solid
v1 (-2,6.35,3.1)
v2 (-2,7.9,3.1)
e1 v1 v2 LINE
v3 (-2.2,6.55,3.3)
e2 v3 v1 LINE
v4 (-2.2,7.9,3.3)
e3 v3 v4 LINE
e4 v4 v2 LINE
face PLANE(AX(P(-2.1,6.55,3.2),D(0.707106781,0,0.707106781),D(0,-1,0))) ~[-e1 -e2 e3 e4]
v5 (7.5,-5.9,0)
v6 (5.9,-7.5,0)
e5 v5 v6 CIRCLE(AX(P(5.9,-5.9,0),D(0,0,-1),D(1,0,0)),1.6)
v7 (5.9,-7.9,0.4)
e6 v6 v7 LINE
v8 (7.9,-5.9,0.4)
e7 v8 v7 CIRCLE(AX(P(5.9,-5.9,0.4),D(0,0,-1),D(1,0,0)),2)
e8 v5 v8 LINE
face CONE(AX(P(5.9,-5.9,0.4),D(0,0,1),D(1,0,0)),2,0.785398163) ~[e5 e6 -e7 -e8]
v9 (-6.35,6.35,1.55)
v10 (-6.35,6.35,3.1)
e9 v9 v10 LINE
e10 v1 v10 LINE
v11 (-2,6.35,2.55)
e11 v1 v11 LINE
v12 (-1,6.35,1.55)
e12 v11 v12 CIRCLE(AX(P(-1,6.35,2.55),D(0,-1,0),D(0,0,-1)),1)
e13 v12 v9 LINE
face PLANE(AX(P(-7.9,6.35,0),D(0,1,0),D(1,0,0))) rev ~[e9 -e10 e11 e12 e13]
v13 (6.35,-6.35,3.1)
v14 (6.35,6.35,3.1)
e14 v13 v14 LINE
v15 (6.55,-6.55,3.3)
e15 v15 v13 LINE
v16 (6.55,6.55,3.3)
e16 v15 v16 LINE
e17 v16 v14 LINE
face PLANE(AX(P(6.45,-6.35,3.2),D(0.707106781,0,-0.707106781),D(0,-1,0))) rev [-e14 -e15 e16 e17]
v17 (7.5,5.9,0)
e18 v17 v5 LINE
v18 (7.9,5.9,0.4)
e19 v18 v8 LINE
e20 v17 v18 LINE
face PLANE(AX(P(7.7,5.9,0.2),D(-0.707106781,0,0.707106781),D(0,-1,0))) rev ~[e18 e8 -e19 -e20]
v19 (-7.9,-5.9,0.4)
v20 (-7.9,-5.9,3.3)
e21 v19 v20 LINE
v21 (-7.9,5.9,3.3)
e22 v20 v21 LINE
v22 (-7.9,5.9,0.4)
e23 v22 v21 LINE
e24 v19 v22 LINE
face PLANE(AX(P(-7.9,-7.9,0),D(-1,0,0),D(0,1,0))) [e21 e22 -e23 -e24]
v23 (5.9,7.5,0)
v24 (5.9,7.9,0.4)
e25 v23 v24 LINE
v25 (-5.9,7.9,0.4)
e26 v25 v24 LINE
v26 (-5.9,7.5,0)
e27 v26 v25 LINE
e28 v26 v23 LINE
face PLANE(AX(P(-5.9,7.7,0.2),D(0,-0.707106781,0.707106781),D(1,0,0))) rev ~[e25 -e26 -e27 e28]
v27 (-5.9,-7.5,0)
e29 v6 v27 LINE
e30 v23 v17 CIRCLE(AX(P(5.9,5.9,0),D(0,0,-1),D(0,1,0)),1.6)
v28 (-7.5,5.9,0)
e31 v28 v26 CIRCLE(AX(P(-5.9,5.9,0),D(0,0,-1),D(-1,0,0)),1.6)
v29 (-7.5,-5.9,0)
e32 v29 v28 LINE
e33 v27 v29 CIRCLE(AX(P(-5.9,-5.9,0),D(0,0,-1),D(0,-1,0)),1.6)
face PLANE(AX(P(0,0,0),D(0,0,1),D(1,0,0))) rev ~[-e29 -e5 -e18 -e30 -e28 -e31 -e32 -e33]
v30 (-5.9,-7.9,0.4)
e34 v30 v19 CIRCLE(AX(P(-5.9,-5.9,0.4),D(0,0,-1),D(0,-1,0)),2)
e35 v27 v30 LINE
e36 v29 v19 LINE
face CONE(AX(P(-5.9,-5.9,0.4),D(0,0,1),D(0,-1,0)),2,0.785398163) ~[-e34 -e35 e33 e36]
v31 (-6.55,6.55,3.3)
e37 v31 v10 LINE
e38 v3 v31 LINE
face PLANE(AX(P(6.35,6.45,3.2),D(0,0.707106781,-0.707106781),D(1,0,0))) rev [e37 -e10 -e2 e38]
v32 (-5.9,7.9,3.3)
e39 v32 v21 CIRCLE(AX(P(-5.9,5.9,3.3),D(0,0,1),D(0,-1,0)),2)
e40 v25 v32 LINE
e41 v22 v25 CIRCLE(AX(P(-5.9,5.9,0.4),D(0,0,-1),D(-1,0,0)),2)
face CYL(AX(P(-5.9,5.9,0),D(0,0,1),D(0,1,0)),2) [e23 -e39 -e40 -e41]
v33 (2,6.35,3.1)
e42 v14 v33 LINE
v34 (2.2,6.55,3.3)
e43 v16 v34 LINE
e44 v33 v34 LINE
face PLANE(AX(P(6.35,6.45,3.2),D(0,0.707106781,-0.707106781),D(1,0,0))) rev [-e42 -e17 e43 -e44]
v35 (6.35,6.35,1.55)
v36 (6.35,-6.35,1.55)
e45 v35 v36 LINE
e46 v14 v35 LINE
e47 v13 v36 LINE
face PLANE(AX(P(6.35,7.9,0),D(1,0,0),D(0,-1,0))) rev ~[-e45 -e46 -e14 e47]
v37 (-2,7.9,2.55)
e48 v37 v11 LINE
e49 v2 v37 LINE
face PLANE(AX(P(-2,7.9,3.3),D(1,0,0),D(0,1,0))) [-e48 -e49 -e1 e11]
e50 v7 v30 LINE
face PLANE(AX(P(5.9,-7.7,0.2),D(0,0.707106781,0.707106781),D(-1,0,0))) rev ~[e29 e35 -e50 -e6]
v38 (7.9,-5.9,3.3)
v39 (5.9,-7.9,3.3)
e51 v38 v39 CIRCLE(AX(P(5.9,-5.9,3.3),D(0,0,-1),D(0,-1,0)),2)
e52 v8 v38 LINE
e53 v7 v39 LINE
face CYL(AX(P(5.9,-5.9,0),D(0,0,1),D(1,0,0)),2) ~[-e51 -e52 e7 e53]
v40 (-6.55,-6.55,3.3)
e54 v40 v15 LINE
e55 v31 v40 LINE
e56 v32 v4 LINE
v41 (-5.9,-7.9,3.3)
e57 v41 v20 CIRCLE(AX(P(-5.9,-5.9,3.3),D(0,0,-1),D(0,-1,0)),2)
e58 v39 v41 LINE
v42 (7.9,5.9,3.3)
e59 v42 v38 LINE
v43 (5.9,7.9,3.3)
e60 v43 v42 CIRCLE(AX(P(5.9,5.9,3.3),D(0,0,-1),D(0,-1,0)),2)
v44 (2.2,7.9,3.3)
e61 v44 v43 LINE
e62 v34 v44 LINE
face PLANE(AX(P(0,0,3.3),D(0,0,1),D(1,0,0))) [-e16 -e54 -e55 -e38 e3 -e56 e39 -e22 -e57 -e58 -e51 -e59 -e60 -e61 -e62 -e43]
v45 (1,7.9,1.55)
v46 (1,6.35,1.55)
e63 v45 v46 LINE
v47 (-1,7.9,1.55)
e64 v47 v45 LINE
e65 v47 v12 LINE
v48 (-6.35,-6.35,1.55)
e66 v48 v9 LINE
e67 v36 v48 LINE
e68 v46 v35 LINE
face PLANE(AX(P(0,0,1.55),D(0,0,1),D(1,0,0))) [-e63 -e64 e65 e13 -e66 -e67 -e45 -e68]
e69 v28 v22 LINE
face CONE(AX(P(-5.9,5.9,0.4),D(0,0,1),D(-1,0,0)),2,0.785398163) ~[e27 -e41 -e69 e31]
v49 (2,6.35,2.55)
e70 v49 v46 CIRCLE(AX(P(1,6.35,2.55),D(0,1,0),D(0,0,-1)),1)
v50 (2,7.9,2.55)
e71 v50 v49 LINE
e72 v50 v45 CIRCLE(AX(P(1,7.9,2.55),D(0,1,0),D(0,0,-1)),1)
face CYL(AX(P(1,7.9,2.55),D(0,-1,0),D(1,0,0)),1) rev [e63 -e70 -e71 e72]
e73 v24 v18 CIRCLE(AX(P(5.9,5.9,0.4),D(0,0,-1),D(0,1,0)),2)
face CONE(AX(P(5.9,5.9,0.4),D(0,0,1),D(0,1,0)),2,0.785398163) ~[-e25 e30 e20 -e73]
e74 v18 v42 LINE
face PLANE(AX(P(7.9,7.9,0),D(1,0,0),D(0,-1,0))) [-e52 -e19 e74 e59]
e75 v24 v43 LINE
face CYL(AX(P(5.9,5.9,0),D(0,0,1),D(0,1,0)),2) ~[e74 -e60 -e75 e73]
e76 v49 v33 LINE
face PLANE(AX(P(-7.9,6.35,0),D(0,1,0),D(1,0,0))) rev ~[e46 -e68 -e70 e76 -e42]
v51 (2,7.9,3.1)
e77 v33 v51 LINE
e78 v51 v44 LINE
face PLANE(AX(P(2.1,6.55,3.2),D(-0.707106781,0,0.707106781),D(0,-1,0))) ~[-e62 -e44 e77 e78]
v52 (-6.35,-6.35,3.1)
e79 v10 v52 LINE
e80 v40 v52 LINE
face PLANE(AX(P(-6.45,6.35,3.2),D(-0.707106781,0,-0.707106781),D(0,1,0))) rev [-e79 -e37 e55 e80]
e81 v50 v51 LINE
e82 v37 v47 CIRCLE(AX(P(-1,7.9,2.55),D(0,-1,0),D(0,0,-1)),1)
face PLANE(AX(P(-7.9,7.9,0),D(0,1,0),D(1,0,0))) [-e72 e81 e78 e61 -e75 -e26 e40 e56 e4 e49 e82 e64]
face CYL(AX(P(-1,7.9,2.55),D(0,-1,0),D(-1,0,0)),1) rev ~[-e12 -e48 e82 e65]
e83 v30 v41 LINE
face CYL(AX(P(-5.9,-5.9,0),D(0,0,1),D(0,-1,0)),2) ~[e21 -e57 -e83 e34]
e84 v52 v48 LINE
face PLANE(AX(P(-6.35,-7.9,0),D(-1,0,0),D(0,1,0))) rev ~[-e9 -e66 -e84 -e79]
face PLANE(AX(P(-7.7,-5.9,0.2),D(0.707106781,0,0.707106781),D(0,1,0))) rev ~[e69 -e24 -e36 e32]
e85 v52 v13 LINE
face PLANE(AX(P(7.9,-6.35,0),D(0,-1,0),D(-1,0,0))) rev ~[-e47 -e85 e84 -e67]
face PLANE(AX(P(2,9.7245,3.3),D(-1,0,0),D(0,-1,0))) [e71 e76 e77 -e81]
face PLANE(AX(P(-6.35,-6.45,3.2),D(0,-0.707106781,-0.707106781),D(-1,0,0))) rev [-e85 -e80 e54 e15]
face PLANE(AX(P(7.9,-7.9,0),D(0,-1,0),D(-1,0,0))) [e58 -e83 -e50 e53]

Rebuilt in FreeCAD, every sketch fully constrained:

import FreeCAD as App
import Part
import Sketcher

V = App.Vector
Q = App.Units.Quantity


def edges_at(feature, points):
    """Names of the edges that pass closest to the given points."""
    edges = feature.Shape.Edges
    near = lambda p: min(range(len(edges)), key=lambda i: edges[i].distToShape(Part.Vertex(*p))[0])
    return sorted({f"Edge{near(p) + 1}" for p in points})


def faces_at(feature, points):
    """Names of the faces that lie closest to the given points."""
    faces = feature.Shape.Faces
    near = lambda p: min(range(len(faces)), key=lambda i: faces[i].distToShape(Part.Vertex(*p))[0])
    return sorted({f"Face{near(p) + 1}" for p in points})

doc = App.newDocument("Part")
body = doc.addObject("PartDesign::Body", "Body")

# Sketch on XY plane
sketch1 = doc.addObject("Sketcher::SketchObject", "Sketch")
body.addObject(sketch1)
sketch1.AttachmentSupport = (doc.XY_Plane, [""])
sketch1.MapMode = "FlatFace"
sketch1.addGeometry([
    Part.LineSegment(V(8, 8, 0), V(-8, 8, 0)),
    Part.LineSegment(V(-8, 8, 0), V(-8, -8, 0)),
    Part.LineSegment(V(-8, -8, 0), V(8, -8, 0)),
    Part.LineSegment(V(8, -8, 0), V(8, 8, 0)),
], False)
sketch1.addConstraint([
    Sketcher.Constraint("Coincident", 0, 2, 1, 1),
    Sketcher.Constraint("Coincident", 1, 2, 2, 1),
    Sketcher.Constraint("Coincident", 2, 2, 3, 1),
    Sketcher.Constraint("Coincident", 3, 2, 0, 1),
    Sketcher.Constraint("Horizontal", 0),
    Sketcher.Constraint("Vertical", 1),
    Sketcher.Constraint("Horizontal", 2),
    Sketcher.Constraint("Vertical", 3),
    Sketcher.Constraint("Symmetric", 0, 2, 2, 2, -1, 1),
    Sketcher.Constraint("Equal", 2, 1),
    Sketcher.Constraint("DistanceX", 0, 2, 0, 1, Q("15.8 mm")),
])
pad1 = doc.addObject("PartDesign::Pad", "Pad")
body.addObject(pad1)
pad1.Profile = sketch1
pad1.Length = 3.3
doc.recompute()

thickness = doc.addObject("PartDesign::Thickness", "Thickness")
body.addObject(thickness)
thickness.Base = (pad1, faces_at(pad1, [(-2.633, 2.633, 3.3)]))
thickness.Value = 1.55
thickness.Reversed = True
thickness.Join = "Intersection"
doc.recompute()

fillet = doc.addObject("PartDesign::Fillet", "Fillet")
body.addObject(fillet)
fillet.Base = (thickness, edges_at(thickness, [
    (7.9, 7.9, 1.65),
    (7.9, -7.9, 1.65),
    (-7.9, -7.9, 1.65),
    (-7.9, 7.9, 1.65),
]))
fillet.Radius = 2
doc.recompute()

chamfer = doc.addObject("PartDesign::Chamfer", "Chamfer")
body.addObject(chamfer)
chamfer.Base = (fillet, edges_at(fillet, [
    (7.9, 0, 0),
    (7.314, -7.314, 0),
    (0, -7.9, 0),
    (-7.314, -7.314, 0),
    (-7.9, 0, 0),
    (-7.314, 7.314, 0),
    (0, 7.9, 0),
    (7.314, 7.314, 0),
]))
chamfer.Size = 0.4
doc.recompute()

chamfer2 = doc.addObject("PartDesign::Chamfer", "Chamfer001")
body.addObject(chamfer2)
chamfer2.Base = (chamfer, edges_at(chamfer, [
    (-6.35, 0, 3.3),
    (0, 6.35, 3.3),
    (6.35, 0, 3.3),
    (0, -6.35, 3.3),
]))
chamfer2.Size = 0.2

# Sketch on XY plane
sketch2 = doc.addObject("Sketcher::SketchObject", "Sketch001")
body.addObject(sketch2)
sketch2.AttachmentSupport = (doc.XY_Plane, [""])
sketch2.MapMode = "FlatFace"
sketch2.AttachmentOffset = App.Placement(V(0, 0, 3.3), App.Rotation())
sketch2.addGeometry([
    Part.LineSegment(V(-2, 9.7, 0), V(-2, 6.1, 0)),
    Part.LineSegment(V(-2, 6.1, 0), V(2, 6.1, 0)),
    Part.LineSegment(V(2, 6.1, 0), V(2, 9.7, 0)),
    Part.LineSegment(V(2, 9.7, 0), V(-2, 9.7, 0)),
], False)
sketch2.addConstraint([
    Sketcher.Constraint("Coincident", 0, 2, 1, 1),
    Sketcher.Constraint("Coincident", 1, 2, 2, 1),
    Sketcher.Constraint("Coincident", 2, 2, 3, 1),
    Sketcher.Constraint("Coincident", 3, 2, 0, 1),
    Sketcher.Constraint("Vertical", 0),
    Sketcher.Constraint("Horizontal", 1),
    Sketcher.Constraint("Vertical", 2),
    Sketcher.Constraint("Horizontal", 3),
    Sketcher.Constraint("DistanceX", 1, 1, 1, 2, Q("4 mm")),
    Sketcher.Constraint("DistanceX", 0, 2, -1, 1, Q("2 mm")),
    Sketcher.Constraint("DistanceY", 0, 2, 0, 1, Q("3.649 mm")),
    Sketcher.Constraint("DistanceY", -1, 1, 0, 2, Q("6.0755 mm")),
])
pocket1 = doc.addObject("PartDesign::Pocket", "Pocket")
body.addObject(pocket1)
pocket1.Profile = sketch2
pocket1.Length = 1.75
doc.recompute()

fillet2 = doc.addObject("PartDesign::Fillet", "Fillet001")
body.addObject(fillet2)
fillet2.Base = (pocket1, edges_at(pocket1, [(-2, 7.125, 1.55), (2, 7.125, 1.55)]))
fillet2.Radius = 1
doc.recompute()

chamfer3 = doc.addObject("PartDesign::Chamfer", "Chamfer002")
body.addObject(chamfer3)
chamfer3.Base = (fillet2, edges_at(fillet2, [(2, 7.225, 3.3), (-2, 7.225, 3.3)]))
chamfer3.Size = 0.2

doc.recompute()
